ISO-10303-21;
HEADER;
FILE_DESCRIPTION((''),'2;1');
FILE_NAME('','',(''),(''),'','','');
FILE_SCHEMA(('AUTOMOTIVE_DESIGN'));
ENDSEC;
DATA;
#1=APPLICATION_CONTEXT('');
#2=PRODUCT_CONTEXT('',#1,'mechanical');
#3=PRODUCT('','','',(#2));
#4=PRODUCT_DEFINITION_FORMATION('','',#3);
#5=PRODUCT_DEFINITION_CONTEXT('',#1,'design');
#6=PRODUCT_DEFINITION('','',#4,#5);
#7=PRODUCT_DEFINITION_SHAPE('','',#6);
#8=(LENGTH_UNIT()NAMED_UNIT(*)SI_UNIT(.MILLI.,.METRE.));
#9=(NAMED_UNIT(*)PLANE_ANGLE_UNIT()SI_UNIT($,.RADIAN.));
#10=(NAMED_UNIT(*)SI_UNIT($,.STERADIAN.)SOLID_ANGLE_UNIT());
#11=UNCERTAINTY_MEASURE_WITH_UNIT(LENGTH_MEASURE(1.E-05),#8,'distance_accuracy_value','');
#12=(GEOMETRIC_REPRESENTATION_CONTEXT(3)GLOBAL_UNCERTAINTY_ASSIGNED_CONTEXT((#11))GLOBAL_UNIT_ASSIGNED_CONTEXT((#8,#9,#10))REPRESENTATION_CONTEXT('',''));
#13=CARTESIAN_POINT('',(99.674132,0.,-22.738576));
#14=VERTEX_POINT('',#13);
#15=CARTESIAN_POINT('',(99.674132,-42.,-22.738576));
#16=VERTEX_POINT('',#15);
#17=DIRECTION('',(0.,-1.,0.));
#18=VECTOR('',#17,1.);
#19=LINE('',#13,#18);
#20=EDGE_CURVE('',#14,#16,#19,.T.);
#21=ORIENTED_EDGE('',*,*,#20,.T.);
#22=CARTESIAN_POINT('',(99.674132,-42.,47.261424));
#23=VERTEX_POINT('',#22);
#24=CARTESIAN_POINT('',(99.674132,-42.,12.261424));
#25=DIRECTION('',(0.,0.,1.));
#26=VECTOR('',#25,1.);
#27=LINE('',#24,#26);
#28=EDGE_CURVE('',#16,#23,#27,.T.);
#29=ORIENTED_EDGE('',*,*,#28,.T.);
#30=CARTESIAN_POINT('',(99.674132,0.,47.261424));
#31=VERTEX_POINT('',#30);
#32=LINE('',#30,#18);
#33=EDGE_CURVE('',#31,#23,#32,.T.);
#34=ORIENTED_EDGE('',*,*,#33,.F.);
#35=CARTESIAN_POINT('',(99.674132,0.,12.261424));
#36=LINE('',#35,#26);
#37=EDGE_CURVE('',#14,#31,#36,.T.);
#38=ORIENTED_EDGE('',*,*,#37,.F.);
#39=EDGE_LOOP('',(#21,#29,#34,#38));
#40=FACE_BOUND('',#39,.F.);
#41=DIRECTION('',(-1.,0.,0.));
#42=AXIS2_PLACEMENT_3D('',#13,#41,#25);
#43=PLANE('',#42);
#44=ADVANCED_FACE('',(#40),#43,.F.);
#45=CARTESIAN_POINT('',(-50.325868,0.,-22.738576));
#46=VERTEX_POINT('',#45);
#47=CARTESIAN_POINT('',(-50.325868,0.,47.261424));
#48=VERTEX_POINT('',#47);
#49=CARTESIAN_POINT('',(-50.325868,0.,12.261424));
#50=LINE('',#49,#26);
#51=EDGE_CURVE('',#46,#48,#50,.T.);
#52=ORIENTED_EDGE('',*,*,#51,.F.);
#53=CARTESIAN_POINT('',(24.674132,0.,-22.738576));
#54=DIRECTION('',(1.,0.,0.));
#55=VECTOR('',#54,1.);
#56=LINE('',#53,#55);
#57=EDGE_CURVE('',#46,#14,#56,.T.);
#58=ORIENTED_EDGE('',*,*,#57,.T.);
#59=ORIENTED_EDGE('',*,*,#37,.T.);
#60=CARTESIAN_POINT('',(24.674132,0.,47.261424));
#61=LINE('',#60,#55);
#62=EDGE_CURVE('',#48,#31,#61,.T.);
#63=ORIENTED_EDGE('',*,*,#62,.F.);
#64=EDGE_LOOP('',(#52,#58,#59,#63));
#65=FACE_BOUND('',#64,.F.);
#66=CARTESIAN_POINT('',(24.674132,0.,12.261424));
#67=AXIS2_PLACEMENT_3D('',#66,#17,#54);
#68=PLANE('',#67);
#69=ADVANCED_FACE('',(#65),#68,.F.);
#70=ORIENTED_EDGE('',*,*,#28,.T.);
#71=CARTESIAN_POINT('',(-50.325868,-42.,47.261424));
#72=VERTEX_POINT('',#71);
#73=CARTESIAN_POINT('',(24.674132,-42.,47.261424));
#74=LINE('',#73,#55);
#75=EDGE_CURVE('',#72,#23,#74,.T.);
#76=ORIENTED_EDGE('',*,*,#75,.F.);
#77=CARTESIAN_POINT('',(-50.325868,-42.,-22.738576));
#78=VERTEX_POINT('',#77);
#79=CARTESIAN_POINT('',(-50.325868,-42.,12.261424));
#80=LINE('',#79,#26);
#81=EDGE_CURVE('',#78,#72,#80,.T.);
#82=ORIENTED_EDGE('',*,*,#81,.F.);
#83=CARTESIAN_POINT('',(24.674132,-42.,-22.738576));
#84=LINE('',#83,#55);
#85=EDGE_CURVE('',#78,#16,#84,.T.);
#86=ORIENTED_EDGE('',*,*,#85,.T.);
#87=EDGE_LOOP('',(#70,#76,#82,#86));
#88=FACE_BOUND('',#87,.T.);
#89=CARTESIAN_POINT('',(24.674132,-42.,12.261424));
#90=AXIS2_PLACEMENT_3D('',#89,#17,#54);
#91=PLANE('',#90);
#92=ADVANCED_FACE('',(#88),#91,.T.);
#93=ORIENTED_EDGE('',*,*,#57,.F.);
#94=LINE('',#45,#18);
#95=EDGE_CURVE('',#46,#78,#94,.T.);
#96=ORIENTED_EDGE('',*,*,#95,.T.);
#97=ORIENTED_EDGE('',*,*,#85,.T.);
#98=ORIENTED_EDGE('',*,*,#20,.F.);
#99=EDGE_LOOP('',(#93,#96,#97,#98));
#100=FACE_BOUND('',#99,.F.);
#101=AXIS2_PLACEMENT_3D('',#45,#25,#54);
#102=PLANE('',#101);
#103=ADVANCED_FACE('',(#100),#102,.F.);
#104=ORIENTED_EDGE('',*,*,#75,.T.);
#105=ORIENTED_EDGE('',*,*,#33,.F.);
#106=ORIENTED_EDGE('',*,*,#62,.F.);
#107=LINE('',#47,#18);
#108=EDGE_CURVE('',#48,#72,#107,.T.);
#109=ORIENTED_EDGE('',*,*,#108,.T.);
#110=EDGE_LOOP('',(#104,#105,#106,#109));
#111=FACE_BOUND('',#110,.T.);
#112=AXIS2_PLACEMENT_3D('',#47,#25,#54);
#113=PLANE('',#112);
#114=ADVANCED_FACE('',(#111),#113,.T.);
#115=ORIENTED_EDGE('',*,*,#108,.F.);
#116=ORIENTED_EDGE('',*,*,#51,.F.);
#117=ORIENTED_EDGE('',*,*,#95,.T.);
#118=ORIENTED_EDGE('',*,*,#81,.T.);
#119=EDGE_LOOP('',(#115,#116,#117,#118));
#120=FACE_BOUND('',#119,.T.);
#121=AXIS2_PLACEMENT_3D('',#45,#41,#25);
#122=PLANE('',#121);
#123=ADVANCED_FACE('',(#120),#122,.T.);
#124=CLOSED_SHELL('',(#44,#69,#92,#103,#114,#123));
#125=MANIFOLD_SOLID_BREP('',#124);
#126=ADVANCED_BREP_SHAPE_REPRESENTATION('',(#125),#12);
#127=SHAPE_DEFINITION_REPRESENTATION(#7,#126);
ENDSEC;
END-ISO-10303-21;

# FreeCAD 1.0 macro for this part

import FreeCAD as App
import Part
import Sketcher
from FreeCAD import Vector


def add_polygon(sketch, points):
    """Adds a closed chain of lines whose ends are joined by coincident constraints."""
    first, n = sketch.GeometryCount, len(points)
    for a, b in zip(points, points[1:] + points[:1]):
        sketch.addGeometry(Part.LineSegment(App.Vector(*a, 0), App.Vector(*b, 0)), False)
    for i in range(n):
        sketch.addConstraint(Sketcher.Constraint("Coincident", first + i, 2, first + (i + 1) % n, 1))

doc = App.newDocument("Part")
body = doc.addObject("PartDesign::Body", "Body")

sketch1 = body.newObject("Sketcher::SketchObject", "Sketch")
sketch1.AttachmentSupport = (doc.getObject("XZ_Plane"), [""])
sketch1.MapMode = "FlatFace"
add_polygon(sketch1, [(-50, 47), (-50, -23), (100, -23), (100, 47)])
sketch1.addConstraint([
    Sketcher.Constraint("Vertical", 0),
    Sketcher.Constraint("Horizontal", 1),
    Sketcher.Constraint("Vertical", 2),
    Sketcher.Constraint("Horizontal", 3),
    Sketcher.Constraint("DistanceX", 1, 1, 1, 2, 150.0),
    Sketcher.Constraint("DistanceY", 0, 2, 0, 1, 70.0),
    Sketcher.Constraint("DistanceX", -1, 1, 1, 2, 99.674132),
    Sketcher.Constraint("DistanceY", 0, 2, -1, 1, 22.738576),
])
pad1 = body.newObject("PartDesign::Pad", "Pad")
pad1.Profile = sketch1
pad1.Length = 42

sketch2 = body.newObject("Sketcher::SketchObject", "Sketch001")
sketch2.AttachmentSupport = (doc.getObject("XZ_Plane"), [""])
sketch2.MapMode = "FlatFace"
sketch2.AttachmentOffset = App.Placement(Vector(0, 0, 42), App.Rotation())
sketch2.addGeometry(Part.Circle(Vector(-19, 14, 0), Vector(0, 0, 1), 14), False)
sketch2.addConstraint([
    Sketcher.Constraint("Diameter", 0, 27.781042),
    Sketcher.Constraint("DistanceY", -1, 1, 0, 3, 13.875489),
    Sketcher.Constraint("DistanceX", 0, 3, -1, 1, 18.871136),
])
pad2 = body.newObject("PartDesign::Pad", "Pad001")
pad2.Profile = sketch2
pad2.Type = "UpToLast"
pad2.Reversed = True

doc.recompute()
